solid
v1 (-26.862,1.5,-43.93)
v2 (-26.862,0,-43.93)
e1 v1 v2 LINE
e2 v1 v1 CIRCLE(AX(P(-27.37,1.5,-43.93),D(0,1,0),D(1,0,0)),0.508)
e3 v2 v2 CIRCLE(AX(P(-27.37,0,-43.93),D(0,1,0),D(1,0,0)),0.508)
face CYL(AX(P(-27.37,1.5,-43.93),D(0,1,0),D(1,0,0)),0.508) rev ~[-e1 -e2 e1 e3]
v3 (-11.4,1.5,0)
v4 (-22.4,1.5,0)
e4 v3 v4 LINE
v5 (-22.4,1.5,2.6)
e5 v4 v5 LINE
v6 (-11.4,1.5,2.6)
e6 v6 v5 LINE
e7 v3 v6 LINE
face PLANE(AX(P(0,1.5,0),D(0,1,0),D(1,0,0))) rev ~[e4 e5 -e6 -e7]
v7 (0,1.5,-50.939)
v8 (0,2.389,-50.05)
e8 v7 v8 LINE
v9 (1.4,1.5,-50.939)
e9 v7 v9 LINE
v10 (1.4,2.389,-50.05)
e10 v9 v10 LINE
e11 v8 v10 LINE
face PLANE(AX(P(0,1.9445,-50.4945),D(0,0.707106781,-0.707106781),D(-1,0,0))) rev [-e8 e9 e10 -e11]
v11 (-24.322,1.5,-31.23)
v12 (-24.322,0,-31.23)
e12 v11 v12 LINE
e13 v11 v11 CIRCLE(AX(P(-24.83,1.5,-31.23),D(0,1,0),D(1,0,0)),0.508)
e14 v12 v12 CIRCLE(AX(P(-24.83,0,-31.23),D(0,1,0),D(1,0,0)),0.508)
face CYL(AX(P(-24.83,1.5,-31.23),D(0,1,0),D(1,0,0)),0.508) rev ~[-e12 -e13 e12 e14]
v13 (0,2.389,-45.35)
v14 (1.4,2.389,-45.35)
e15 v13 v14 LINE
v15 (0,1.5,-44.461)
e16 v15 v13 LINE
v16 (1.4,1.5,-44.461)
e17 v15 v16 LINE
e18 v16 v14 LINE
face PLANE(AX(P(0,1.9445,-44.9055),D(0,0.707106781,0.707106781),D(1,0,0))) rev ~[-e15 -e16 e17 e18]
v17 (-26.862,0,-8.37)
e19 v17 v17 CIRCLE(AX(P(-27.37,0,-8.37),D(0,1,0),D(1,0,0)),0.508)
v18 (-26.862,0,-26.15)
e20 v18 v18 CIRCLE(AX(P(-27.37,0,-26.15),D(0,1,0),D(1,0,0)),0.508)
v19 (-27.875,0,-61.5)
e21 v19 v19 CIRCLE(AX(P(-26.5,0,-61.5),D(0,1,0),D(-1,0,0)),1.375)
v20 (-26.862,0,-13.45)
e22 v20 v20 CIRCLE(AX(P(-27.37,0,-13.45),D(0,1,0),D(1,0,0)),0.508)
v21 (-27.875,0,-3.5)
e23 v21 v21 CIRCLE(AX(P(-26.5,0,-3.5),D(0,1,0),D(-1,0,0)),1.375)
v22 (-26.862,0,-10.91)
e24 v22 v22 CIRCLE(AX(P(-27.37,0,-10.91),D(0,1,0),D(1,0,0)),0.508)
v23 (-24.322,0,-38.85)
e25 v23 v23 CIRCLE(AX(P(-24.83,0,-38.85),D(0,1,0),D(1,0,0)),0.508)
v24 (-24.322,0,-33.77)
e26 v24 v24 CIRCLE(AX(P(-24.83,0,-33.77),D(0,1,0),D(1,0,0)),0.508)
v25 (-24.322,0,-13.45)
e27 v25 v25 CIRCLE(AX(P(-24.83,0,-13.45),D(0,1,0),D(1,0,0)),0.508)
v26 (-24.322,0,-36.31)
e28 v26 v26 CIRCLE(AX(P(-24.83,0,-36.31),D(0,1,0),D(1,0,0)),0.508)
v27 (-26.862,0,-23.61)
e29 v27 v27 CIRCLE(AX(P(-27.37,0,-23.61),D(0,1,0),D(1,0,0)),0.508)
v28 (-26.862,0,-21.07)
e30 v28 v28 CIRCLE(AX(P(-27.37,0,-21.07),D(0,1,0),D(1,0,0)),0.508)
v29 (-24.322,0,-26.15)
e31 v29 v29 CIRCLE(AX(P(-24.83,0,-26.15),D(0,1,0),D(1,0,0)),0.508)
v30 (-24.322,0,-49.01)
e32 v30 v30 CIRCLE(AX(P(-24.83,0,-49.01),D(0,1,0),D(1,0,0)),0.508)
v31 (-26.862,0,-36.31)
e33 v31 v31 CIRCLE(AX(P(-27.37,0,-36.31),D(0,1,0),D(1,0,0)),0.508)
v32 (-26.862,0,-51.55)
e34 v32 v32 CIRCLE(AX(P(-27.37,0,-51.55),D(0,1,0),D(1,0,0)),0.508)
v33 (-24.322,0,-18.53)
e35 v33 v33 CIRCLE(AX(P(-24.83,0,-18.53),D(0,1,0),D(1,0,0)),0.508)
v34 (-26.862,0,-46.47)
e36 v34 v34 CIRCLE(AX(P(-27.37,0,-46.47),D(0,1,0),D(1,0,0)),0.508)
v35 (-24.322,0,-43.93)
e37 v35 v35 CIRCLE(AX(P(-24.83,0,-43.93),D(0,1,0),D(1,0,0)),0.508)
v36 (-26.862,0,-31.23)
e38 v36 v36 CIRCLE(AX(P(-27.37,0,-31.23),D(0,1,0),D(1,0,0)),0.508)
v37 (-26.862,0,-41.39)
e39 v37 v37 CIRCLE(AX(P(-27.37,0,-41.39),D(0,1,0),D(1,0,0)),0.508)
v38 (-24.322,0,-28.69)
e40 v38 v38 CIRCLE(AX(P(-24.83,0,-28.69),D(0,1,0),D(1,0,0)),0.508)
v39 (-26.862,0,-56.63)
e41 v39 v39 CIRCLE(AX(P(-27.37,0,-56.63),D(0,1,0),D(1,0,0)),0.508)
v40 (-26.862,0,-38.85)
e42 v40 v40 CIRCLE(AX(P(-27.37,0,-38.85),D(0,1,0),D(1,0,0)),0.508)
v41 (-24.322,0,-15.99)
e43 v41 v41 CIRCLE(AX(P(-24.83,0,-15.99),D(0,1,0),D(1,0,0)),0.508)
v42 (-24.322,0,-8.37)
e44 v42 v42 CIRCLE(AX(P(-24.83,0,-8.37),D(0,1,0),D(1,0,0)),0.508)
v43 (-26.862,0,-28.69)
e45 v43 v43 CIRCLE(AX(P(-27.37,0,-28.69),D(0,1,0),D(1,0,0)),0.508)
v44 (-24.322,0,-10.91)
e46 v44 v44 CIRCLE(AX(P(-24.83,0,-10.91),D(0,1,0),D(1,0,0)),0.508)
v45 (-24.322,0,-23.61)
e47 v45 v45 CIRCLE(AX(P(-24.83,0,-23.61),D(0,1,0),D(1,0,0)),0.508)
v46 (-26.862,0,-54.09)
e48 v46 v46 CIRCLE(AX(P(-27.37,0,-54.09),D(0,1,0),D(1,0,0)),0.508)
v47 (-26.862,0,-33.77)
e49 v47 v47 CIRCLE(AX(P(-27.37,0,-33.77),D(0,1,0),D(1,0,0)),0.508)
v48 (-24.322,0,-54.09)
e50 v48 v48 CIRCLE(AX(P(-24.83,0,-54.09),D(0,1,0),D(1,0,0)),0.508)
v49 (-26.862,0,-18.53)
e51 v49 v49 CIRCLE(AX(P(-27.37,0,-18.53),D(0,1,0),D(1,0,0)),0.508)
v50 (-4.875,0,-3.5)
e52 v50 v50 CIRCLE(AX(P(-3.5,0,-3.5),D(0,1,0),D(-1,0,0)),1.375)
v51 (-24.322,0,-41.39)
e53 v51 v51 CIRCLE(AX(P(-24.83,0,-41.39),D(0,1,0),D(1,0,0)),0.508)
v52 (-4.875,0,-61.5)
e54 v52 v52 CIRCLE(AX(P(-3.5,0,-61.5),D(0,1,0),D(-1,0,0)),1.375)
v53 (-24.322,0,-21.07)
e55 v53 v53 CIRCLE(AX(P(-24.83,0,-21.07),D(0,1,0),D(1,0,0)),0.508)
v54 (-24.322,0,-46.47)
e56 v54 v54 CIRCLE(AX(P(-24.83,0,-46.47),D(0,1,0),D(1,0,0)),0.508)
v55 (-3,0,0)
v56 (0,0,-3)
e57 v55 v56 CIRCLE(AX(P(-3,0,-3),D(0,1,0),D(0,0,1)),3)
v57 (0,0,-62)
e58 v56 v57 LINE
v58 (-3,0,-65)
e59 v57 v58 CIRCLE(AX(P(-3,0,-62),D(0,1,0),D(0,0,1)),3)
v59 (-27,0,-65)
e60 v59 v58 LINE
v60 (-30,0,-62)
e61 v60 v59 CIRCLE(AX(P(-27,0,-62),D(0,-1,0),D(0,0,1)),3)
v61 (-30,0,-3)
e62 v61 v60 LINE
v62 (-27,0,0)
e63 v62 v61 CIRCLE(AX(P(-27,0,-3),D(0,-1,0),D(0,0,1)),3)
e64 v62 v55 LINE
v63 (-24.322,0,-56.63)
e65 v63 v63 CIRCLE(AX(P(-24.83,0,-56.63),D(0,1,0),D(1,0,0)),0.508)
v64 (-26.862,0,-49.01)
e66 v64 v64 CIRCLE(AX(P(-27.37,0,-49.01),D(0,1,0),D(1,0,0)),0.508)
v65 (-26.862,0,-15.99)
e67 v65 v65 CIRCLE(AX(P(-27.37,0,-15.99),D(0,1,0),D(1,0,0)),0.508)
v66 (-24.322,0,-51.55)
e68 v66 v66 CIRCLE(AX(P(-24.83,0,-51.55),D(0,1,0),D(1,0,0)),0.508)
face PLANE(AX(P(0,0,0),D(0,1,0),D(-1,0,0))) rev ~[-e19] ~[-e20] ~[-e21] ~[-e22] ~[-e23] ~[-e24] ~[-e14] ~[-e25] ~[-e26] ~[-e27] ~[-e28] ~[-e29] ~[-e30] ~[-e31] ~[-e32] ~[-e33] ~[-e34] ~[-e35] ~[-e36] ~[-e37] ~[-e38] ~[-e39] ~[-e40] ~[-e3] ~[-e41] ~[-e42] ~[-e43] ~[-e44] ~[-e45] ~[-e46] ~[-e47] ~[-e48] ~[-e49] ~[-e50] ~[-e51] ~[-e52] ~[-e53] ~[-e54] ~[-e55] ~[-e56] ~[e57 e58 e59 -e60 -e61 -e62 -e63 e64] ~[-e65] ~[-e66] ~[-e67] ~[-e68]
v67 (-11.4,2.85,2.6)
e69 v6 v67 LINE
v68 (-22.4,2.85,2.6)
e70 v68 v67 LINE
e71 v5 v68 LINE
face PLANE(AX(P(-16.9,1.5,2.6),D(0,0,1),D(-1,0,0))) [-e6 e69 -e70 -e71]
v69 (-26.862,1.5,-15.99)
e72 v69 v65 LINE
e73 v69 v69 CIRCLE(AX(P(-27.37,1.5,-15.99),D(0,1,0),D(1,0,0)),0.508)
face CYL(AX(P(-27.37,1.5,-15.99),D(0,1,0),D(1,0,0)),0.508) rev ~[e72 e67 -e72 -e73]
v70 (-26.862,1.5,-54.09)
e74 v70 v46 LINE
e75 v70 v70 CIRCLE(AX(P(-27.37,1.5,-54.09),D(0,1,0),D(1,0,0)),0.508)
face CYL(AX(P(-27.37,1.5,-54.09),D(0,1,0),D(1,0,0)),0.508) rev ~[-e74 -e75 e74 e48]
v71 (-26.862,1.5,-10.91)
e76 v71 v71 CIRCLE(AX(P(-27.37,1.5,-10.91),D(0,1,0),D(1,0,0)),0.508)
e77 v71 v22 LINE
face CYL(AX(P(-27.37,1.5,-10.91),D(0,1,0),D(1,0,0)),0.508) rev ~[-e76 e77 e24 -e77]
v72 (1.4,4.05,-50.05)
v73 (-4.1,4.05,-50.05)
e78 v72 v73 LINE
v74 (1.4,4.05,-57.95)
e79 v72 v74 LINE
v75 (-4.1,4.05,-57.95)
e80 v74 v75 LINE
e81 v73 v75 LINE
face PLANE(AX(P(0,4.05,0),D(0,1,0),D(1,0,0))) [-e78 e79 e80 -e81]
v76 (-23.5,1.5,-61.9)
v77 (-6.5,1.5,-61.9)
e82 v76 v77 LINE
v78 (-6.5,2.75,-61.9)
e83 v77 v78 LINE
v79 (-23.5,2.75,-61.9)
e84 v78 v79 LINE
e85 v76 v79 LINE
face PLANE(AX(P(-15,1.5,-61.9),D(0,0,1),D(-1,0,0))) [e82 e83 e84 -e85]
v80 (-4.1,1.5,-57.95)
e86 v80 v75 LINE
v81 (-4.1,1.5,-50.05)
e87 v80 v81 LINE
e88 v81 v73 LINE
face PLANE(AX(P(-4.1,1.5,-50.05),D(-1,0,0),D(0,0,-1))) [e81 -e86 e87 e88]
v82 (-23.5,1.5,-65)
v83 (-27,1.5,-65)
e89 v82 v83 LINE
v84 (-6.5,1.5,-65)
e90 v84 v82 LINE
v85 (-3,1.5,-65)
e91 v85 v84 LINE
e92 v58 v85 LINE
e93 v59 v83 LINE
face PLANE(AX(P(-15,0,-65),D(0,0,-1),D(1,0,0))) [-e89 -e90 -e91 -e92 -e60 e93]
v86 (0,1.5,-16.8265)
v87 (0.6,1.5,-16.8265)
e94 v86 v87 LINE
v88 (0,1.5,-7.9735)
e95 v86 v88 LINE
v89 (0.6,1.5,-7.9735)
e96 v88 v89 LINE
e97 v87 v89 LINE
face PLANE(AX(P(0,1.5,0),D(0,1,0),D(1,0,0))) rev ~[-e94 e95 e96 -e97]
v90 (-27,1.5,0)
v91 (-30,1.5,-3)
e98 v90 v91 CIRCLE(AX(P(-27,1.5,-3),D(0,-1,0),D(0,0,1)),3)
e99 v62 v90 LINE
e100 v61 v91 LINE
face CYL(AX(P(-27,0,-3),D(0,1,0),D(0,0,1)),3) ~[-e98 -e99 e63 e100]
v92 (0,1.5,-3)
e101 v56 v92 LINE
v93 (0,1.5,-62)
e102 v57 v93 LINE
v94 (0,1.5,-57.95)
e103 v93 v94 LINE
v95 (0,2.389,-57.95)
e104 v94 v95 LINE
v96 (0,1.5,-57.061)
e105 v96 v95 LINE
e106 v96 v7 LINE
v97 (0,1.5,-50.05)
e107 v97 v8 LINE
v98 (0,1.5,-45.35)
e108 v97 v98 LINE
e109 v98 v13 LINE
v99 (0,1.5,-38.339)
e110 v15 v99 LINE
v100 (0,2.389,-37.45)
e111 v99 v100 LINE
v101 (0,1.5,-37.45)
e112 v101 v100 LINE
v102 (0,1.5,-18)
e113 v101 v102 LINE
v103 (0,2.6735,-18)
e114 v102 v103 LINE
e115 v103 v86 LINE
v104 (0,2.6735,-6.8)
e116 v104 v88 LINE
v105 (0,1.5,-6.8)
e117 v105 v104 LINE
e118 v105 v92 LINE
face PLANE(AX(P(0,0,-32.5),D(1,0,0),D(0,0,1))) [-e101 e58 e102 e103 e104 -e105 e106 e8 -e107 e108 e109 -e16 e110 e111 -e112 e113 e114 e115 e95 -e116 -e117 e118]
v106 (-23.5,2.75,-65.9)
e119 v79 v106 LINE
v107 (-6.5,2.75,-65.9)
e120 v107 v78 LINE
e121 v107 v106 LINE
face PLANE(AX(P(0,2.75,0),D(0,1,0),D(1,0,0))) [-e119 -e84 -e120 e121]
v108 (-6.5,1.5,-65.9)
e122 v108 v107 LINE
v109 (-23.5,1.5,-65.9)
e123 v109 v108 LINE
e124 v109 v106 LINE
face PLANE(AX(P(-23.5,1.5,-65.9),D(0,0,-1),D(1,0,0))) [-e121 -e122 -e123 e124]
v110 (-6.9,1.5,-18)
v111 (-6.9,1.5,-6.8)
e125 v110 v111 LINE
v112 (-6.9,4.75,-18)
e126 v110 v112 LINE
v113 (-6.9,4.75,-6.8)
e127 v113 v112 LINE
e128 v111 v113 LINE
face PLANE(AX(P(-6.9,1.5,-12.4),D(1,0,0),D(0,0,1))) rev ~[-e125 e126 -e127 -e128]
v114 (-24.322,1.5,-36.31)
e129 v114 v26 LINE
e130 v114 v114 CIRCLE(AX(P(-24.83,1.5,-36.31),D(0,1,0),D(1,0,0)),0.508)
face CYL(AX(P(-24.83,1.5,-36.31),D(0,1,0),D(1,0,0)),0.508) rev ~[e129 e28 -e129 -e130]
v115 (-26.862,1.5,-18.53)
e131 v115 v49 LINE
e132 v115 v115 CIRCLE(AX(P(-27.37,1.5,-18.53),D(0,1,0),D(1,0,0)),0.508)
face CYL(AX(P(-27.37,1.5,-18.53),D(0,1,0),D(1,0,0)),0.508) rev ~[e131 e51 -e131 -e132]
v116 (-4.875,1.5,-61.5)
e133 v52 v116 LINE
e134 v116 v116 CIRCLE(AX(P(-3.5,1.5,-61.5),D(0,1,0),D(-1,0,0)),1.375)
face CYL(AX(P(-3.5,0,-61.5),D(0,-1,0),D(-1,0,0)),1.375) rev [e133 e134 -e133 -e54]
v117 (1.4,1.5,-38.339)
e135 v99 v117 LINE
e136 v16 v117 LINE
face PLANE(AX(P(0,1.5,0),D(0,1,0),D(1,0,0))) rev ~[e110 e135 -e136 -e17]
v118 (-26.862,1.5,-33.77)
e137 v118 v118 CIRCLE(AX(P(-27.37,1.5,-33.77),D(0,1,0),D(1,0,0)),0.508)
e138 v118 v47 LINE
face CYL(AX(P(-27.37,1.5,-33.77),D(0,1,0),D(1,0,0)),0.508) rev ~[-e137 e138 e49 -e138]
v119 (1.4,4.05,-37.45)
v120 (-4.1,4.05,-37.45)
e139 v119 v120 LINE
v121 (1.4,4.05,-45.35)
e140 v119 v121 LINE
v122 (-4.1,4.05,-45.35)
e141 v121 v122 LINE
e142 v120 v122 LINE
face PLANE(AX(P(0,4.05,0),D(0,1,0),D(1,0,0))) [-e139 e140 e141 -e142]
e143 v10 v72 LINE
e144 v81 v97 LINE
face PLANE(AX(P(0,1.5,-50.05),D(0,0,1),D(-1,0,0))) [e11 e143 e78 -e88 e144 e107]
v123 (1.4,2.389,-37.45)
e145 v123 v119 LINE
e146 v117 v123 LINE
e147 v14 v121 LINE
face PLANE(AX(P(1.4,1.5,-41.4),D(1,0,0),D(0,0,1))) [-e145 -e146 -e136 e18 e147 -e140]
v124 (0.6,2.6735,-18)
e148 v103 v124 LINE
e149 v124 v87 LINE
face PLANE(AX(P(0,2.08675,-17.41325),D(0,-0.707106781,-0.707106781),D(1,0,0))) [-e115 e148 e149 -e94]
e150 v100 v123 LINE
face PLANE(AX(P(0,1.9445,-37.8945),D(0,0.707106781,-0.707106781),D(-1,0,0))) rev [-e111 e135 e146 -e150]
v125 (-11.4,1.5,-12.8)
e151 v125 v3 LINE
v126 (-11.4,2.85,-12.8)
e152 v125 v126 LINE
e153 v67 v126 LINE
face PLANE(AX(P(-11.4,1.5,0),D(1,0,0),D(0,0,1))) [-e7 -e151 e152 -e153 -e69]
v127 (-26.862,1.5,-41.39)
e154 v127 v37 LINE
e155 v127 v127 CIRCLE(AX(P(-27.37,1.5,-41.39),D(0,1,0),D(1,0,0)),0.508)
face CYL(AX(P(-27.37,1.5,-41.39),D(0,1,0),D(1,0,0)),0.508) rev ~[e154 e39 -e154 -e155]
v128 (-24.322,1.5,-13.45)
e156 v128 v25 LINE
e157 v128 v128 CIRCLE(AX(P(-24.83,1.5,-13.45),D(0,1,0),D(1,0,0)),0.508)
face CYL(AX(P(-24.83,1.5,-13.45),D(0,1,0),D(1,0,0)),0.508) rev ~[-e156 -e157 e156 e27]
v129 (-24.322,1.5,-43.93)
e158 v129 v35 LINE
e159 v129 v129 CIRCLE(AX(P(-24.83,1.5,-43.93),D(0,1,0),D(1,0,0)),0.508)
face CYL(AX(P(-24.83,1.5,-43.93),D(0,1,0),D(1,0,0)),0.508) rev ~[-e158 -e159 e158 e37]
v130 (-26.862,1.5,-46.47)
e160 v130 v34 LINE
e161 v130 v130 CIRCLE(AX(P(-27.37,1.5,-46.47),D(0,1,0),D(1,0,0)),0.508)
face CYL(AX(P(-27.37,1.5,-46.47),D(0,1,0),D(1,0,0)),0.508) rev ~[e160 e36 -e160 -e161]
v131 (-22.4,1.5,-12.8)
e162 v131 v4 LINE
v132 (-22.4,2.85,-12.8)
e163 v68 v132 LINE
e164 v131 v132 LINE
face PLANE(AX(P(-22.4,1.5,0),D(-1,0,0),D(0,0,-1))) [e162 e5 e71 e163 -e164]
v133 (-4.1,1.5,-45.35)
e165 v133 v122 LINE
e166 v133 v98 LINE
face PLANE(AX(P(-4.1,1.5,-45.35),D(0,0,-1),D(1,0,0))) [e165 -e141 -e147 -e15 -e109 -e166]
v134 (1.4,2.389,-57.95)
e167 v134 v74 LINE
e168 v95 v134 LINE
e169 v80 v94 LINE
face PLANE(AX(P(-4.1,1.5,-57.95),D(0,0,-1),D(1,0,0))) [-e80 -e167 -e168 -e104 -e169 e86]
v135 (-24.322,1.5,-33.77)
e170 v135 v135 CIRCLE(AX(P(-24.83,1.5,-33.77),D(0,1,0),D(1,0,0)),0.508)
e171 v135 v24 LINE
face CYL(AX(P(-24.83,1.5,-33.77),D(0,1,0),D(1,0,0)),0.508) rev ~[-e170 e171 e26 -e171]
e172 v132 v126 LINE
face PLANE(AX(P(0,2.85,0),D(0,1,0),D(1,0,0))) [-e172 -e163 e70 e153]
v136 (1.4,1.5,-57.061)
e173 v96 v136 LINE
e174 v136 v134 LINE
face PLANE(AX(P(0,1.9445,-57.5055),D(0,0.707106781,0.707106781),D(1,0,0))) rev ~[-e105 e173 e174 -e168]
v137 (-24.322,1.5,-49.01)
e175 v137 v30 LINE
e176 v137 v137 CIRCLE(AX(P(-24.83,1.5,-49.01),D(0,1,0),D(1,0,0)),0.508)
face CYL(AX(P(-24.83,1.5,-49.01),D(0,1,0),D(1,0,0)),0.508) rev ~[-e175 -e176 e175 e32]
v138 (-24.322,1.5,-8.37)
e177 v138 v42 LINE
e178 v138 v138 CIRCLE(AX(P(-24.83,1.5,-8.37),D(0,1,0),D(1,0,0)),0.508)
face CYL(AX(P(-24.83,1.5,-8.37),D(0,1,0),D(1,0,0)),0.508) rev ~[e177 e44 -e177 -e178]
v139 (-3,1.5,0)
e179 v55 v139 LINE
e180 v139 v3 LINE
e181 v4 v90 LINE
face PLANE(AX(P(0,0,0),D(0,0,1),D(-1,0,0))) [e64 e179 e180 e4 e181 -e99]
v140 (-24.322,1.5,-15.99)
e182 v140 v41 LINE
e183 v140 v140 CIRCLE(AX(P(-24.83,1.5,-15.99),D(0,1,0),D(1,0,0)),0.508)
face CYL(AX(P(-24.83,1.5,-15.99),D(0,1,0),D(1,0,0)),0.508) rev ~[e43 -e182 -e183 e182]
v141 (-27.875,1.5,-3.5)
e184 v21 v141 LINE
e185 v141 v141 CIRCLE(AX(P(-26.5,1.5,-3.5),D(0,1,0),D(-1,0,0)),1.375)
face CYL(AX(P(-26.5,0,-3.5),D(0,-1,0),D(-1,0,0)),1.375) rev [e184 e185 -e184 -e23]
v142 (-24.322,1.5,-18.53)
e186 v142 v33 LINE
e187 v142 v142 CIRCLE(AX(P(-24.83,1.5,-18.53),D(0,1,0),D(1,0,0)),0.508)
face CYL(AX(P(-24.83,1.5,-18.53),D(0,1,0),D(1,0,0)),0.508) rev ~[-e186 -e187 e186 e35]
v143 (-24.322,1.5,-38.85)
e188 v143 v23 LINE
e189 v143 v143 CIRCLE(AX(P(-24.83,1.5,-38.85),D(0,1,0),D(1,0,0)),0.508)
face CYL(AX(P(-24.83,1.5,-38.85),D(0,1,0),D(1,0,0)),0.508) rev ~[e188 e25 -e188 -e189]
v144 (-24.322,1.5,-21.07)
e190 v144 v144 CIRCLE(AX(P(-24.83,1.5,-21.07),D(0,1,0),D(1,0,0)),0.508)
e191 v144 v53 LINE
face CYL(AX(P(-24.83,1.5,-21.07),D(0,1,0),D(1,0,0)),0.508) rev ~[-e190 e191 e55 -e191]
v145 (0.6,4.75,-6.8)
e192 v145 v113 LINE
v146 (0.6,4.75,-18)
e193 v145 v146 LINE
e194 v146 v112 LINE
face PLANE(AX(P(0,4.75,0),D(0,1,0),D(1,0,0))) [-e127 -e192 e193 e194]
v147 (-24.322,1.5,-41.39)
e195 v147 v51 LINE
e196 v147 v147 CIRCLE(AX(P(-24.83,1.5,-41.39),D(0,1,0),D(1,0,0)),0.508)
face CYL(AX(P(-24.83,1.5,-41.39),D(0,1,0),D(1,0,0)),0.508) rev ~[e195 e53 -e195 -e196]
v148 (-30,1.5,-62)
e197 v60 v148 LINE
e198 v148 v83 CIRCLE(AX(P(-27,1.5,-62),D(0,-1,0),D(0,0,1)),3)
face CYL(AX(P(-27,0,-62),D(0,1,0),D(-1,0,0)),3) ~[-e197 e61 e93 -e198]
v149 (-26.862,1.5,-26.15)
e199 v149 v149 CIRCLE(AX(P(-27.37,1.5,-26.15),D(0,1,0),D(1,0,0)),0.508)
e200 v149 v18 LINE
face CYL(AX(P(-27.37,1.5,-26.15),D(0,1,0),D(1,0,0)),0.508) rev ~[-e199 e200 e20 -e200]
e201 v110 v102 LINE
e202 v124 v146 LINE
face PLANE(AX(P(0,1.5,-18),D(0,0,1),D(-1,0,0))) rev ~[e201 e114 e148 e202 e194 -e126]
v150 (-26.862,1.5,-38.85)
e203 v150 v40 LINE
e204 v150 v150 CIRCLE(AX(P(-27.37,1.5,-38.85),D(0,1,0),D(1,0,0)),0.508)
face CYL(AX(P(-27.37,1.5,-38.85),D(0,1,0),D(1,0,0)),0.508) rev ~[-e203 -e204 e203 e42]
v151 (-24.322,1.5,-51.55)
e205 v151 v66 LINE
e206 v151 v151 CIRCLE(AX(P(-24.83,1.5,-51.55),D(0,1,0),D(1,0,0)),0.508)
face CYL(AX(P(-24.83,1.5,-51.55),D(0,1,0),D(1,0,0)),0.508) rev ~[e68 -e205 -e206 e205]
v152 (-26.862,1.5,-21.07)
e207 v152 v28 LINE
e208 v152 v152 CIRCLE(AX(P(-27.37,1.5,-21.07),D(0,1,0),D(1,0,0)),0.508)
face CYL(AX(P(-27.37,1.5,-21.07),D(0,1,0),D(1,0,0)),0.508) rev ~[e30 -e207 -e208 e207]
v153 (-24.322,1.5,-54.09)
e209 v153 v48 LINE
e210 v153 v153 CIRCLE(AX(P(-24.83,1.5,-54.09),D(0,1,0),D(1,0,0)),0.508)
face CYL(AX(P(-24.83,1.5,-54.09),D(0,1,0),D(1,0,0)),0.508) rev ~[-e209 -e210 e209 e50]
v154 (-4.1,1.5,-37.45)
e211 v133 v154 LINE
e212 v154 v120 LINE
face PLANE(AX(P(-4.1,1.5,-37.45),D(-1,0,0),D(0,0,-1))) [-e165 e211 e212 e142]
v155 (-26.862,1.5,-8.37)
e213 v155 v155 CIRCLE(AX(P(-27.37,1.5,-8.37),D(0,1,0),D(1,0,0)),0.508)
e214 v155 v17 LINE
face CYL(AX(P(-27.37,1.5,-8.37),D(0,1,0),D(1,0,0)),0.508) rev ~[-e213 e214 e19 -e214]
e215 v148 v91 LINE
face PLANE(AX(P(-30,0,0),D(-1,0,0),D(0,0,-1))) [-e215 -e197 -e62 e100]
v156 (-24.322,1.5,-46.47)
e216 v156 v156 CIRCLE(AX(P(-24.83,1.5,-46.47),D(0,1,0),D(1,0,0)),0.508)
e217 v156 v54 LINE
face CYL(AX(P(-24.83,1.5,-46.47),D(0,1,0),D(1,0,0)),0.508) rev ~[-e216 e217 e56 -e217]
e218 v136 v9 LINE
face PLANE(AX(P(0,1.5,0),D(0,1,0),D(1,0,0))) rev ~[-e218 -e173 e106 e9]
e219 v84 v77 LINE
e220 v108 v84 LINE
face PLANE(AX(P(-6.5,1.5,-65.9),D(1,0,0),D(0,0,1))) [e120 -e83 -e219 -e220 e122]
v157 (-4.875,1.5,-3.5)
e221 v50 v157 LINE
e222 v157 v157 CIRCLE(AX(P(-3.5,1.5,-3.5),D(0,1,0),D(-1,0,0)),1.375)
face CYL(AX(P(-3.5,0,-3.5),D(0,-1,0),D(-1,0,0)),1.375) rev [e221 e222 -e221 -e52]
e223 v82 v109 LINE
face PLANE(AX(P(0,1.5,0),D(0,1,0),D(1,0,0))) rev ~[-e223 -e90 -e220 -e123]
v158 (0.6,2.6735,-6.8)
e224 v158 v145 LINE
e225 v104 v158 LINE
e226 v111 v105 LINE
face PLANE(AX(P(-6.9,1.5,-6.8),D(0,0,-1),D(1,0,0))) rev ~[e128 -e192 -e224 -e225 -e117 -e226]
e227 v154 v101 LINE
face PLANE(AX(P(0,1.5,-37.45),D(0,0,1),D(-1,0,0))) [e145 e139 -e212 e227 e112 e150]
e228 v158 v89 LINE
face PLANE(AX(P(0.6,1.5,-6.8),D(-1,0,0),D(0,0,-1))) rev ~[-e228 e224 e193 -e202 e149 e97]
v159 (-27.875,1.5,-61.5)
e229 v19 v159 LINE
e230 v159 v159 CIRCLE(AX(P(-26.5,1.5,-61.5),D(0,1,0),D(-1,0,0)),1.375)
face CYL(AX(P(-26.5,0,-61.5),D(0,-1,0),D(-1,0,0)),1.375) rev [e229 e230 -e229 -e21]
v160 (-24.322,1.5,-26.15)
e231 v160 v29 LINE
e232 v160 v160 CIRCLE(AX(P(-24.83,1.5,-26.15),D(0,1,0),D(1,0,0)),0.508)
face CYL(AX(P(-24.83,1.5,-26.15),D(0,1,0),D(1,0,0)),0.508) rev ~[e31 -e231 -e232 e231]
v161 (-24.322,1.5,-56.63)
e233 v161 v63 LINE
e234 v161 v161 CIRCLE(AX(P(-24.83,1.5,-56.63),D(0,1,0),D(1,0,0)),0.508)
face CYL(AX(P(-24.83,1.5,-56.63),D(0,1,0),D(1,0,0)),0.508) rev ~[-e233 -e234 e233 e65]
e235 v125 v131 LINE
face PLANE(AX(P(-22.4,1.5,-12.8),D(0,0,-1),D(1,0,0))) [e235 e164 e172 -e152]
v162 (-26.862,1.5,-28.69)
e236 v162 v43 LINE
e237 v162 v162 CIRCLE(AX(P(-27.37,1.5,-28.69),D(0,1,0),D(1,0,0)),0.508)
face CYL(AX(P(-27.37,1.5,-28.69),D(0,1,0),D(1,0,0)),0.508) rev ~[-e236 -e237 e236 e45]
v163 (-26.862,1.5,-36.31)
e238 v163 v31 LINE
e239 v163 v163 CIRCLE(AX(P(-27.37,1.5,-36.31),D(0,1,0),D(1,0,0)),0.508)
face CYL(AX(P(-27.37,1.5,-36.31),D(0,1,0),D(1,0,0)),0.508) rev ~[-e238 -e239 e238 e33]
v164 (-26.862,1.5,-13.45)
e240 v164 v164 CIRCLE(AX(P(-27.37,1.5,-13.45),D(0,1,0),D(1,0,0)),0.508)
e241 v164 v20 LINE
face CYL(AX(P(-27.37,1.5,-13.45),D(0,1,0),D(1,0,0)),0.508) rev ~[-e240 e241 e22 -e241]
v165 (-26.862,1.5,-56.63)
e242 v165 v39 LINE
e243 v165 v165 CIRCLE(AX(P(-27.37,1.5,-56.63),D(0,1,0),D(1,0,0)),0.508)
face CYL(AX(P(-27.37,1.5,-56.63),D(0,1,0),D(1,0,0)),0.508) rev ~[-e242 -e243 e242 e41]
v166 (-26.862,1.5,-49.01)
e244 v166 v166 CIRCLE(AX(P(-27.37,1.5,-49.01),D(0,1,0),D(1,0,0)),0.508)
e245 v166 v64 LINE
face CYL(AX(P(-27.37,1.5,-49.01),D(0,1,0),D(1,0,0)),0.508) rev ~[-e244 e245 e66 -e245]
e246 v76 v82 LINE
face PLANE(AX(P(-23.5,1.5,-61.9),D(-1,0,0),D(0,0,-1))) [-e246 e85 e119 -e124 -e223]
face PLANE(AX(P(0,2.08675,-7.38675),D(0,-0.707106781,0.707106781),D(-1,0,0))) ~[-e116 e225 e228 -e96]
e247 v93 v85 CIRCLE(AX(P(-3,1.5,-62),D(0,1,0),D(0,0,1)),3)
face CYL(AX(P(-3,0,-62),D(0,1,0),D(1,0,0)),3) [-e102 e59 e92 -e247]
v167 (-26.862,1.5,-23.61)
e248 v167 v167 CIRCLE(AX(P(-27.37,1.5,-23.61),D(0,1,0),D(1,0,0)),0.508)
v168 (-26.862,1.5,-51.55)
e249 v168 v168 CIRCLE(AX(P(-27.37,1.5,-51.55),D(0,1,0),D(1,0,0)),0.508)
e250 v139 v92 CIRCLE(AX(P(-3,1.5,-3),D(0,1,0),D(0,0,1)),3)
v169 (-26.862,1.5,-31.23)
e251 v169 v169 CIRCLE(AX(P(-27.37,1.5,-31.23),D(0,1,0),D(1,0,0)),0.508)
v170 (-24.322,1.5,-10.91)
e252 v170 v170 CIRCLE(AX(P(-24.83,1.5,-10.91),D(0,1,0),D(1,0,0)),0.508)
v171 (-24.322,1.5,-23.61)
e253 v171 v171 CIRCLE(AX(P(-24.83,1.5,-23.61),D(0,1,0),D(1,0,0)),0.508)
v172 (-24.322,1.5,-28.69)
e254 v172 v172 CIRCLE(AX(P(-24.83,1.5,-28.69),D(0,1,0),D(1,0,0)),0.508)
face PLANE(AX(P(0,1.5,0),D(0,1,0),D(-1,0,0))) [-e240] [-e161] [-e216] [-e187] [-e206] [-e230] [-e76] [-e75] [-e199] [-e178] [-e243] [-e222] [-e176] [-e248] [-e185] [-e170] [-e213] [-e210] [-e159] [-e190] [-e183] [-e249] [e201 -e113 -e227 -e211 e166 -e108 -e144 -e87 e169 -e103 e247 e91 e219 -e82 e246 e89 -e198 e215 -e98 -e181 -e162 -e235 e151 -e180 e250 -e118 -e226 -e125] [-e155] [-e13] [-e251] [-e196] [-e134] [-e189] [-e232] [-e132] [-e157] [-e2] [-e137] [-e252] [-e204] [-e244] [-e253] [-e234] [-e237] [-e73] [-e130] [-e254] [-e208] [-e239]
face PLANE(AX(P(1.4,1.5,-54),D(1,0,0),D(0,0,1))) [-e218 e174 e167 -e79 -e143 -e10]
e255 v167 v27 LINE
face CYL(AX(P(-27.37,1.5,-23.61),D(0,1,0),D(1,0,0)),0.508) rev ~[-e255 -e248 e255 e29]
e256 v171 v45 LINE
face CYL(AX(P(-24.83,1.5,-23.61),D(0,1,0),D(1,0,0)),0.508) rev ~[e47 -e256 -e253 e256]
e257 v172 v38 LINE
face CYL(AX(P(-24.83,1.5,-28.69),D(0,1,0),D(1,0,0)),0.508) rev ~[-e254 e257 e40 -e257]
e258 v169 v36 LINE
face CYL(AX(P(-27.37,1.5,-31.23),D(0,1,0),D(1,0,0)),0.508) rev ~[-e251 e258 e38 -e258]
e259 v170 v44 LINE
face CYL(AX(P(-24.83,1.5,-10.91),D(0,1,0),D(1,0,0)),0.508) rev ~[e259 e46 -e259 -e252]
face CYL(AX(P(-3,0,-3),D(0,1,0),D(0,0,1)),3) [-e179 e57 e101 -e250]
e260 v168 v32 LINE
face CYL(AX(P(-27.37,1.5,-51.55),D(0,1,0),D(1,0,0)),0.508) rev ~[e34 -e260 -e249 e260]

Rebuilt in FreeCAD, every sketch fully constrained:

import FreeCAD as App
import Part
import Sketcher

V = App.Vector


def edges_at(feature, points):
    """Names of the edges that pass closest to the given points."""
    edges = feature.Shape.Edges
    near = lambda p: min(range(len(edges)), key=lambda i: edges[i].distToShape(Part.Vertex(*p))[0])
    return sorted({f"Edge{near(p) + 1}" for p in points})


def add_polygon(sketch, points):
    """Adds a closed chain of lines whose ends are joined by coincident constraints."""
    first, n = sketch.GeometryCount, len(points)
    for a, b in zip(points, points[1:] + points[:1]):
        sketch.addGeometry(Part.LineSegment(App.Vector(*a, 0), App.Vector(*b, 0)), False)
    for i in range(n):
        sketch.addConstraint(Sketcher.Constraint("Coincident", first + i, 2, first + (i + 1) % n, 1))

doc = App.newDocument("Part")
params = doc.addObject("Spreadsheet::Sheet", "Params")
for row, (alias, value) in enumerate([
    ("sketch1_diameter", "2.75 mm"),
    ("sketch1_width", "30 mm"),
    ("sketch1_height", "65 mm"),
    ("pad1_length", "1.5 mm"),
    ("fillet_radius", "3 mm"),
    ("sketch2_width", "7.5 mm"),
    ("sketch2_height", "11.2 mm"),
    ("pad2_length", "3.25 mm"),
    ("sketch3_width", "5.5 mm"),
    ("sketch3_height", "7.9 mm"),
    ("pad3_length", "2.55 mm"),
    ("sketch4_width", "17 mm"),
    ("sketch4_height", "4 mm"),
    ("pad4_length", "1.25 mm"),
    ("sketch5_width", "11 mm"),
    ("sketch5_height", "15.4 mm"),
    ("pad5_length", "1.35 mm"),
    ("chamfer_size", "1.1735 mm"),
    ("chamfer2_size", "0.889 mm"),
], start=1):
    params.set(f"A{row}", alias)
    params.set(f"B{row}", "=" + value)
    params.setAlias(f"B{row}", alias)

body = doc.addObject("PartDesign::Body", "Body")

sketch1 = doc.addObject("Sketcher::SketchObject", "Sketch")
body.addObject(sketch1)
sketch1.AttachmentSupport = (doc.XZ_Plane, [""])
sketch1.MapMode = "FlatFace"
add_polygon(sketch1, [(0, 0), (0, -65), (-30, -65), (-30, 0)])
sketch1.addGeometry(Part.Circle(V(-3.5, -3.5, 0), V(0, 0, 1), 1.375), False)
sketch1.addGeometry(Part.Circle(V(-26.5, -3.5, 0), V(0, 0, 1), 1.375), False)
sketch1.addGeometry(Part.Circle(V(-3.5, -61.5, 0), V(0, 0, 1), 1.375), False)
sketch1.addGeometry(Part.Circle(V(-26.5, -61.5, 0), V(0, 0, 1), 1.375), False)
sketch1.addConstraint(Sketcher.Constraint("Vertical", 0))
sketch1.addConstraint(Sketcher.Constraint("Horizontal", 1))
sketch1.addConstraint(Sketcher.Constraint("Vertical", 2))
sketch1.addConstraint(Sketcher.Constraint("Horizontal", 3))
sketch1.addConstraint(Sketcher.Constraint("Coincident", 3, 2, -1, 1))
sketch1.addConstraint(Sketcher.Constraint("Equal", 4, 5))
sketch1.addConstraint(Sketcher.Constraint("Equal", 5, 6))
sketch1.addConstraint(Sketcher.Constraint("Equal", 6, 7))
sketch1.addConstraint(Sketcher.Constraint("Horizontal", 4, 3, 5, 3))
sketch1.addConstraint(Sketcher.Constraint("Horizontal", 6, 3, 7, 3))
sketch1.addConstraint(Sketcher.Constraint("Vertical", 4, 3, 6, 3))
sketch1.addConstraint(Sketcher.Constraint("Vertical", 5, 3, 7, 3))
sketch1.addConstraint(Sketcher.Constraint("Diameter", 4, 2.75))
sketch1.addConstraint(Sketcher.Constraint("DistanceX", 1, 2, 1, 1, 30.0))
sketch1.addConstraint(Sketcher.Constraint("DistanceY", 0, 2, 0, 1, 65.0))
sketch1.addConstraint(Sketcher.Constraint("DistanceX", 4, 3, -1, 1, 3.5))
sketch1.addConstraint(Sketcher.Constraint("DistanceY", 4, 3, -1, 1, 3.5))
sketch1.addConstraint(Sketcher.Constraint("DistanceY", 0, 2, 6, 3, 3.5))
sketch1.addConstraint(Sketcher.Constraint("DistanceX", 1, 2, 7, 3, 3.5))
sketch1.setExpression("Constraints[16]", "Params.sketch1_diameter")
sketch1.setExpression("Constraints[17]", "Params.sketch1_width")
sketch1.setExpression("Constraints[18]", "Params.sketch1_height")
pad1 = doc.addObject("PartDesign::Pad", "Pad")
body.addObject(pad1)
pad1.Profile = sketch1
pad1.setExpression("Length", "Params.pad1_length")
pad1.Reversed = True
doc.recompute()

fillet = doc.addObject("PartDesign::Fillet", "Fillet")
body.addObject(fillet)
fillet.Base = (pad1, edges_at(pad1, [
    (-30, 0.75, 0),
    (0, 0.75, 0),
    (0, 0.75, -65),
    (-30, 0.75, -65),
]))
fillet.setExpression("Radius", "Params.fillet_radius")

sketch2 = doc.addObject("Sketcher::SketchObject", "Sketch001")
body.addObject(sketch2)
sketch2.AttachmentSupport = (doc.XZ_Plane, [""])
sketch2.MapMode = "FlatFace"
sketch2.AttachmentOffset = App.Placement(V(0, 0, -1.5), App.Rotation())
add_polygon(sketch2, [(-6.9, -6.8), (0.6, -6.8), (0.6, -18), (-6.9, -18)])
sketch2.addConstraint(Sketcher.Constraint("Horizontal", 0))
sketch2.addConstraint(Sketcher.Constraint("Vertical", 1))
sketch2.addConstraint(Sketcher.Constraint("Horizontal", 2))
sketch2.addConstraint(Sketcher.Constraint("Vertical", 3))
sketch2.addConstraint(Sketcher.Constraint("DistanceX", 0, 1, 0, 2, 7.5))
sketch2.addConstraint(Sketcher.Constraint("DistanceY", 1, 2, 1, 1, 11.2))
sketch2.addConstraint(Sketcher.Constraint("DistanceY", 1, 2, -1, 1, 18.0))
sketch2.addConstraint(Sketcher.Constraint("DistanceX", -1, 1, 0, 2, 0.6))
sketch2.setExpression("Constraints[8]", "Params.sketch2_width")
sketch2.setExpression("Constraints[9]", "Params.sketch2_height")
pad2 = doc.addObject("PartDesign::Pad", "Pad001")
body.addObject(pad2)
pad2.Profile = sketch2
pad2.setExpression("Length", "Params.pad2_length")
pad2.Reversed = True

sketch3 = doc.addObject("Sketcher::SketchObject", "Sketch002")
body.addObject(sketch3)
sketch3.AttachmentSupport = (doc.XZ_Plane, [""])
sketch3.MapMode = "FlatFace"
sketch3.AttachmentOffset = App.Placement(V(0, 0, -1.5), App.Rotation())
add_polygon(sketch3, [(-4.1, -50.05), (1.4, -50.05), (1.4, -57.95), (-4.1, -57.95)])
add_polygon(sketch3, [(-4.1, -37.45), (1.4, -37.45), (1.4, -45.35), (-4.1, -45.35)])
sketch3.addConstraint(Sketcher.Constraint("Horizontal", 0))
sketch3.addConstraint(Sketcher.Constraint("Vertical", 1))
sketch3.addConstraint(Sketcher.Constraint("Horizontal", 2))
sketch3.addConstraint(Sketcher.Constraint("Vertical", 3))
sketch3.addConstraint(Sketcher.Constraint("Horizontal", 4))
sketch3.addConstraint(Sketcher.Constraint("Vertical", 5))
sketch3.addConstraint(Sketcher.Constraint("Horizontal", 6))
sketch3.addConstraint(Sketcher.Constraint("Vertical", 7))
sketch3.addConstraint(Sketcher.Constraint("Vertical", 1, 2, 4, 2))
sketch3.addConstraint(Sketcher.Constraint("Vertical", 3, 2, 6, 2))
sketch3.addConstraint(Sketcher.Constraint("Equal", 3, 5))
sketch3.addConstraint(Sketcher.Constraint("DistanceX", 0, 1, 0, 2, 5.5))
sketch3.addConstraint(Sketcher.Constraint("DistanceY", 1, 2, 1, 1, 7.9))
sketch3.addConstraint(Sketcher.Constraint("DistanceX", -1, 1, 0, 2, 1.4))
sketch3.addConstraint(Sketcher.Constraint("DistanceY", 0, 2, 4, 2, 12.6))
sketch3.addConstraint(Sketcher.Constraint("DistanceY", 0, 2, -1, 1, 50.05))
sketch3.setExpression("Constraints[19]", "Params.sketch3_width")
sketch3.setExpression("Constraints[20]", "Params.sketch3_height")
pad3 = doc.addObject("PartDesign::Pad", "Pad002")
body.addObject(pad3)
pad3.Profile = sketch3
pad3.setExpression("Length", "Params.pad3_length")
pad3.Reversed = True

sketch4 = doc.addObject("Sketcher::SketchObject", "Sketch003")
body.addObject(sketch4)
sketch4.AttachmentSupport = (doc.XZ_Plane, [""])
sketch4.MapMode = "FlatFace"
sketch4.AttachmentOffset = App.Placement(V(0, 0, -1.5), App.Rotation())
add_polygon(sketch4, [(-23.5, -61.9), (-6.5, -61.9), (-6.5, -65.9), (-23.5, -65.9)])
sketch4.addConstraint(Sketcher.Constraint("Horizontal", 0))
sketch4.addConstraint(Sketcher.Constraint("Vertical", 1))
sketch4.addConstraint(Sketcher.Constraint("Horizontal", 2))
sketch4.addConstraint(Sketcher.Constraint("Vertical", 3))
sketch4.addConstraint(Sketcher.Constraint("DistanceX", 0, 1, 0, 2, 17.0))
sketch4.addConstraint(Sketcher.Constraint("DistanceY", 1, 2, 1, 1, 4.0))
sketch4.addConstraint(Sketcher.Constraint("DistanceY", 1, 2, -1, 1, 65.9))
sketch4.addConstraint(Sketcher.Constraint("DistanceX", 0, 2, -1, 1, 6.5))
sketch4.setExpression("Constraints[8]", "Params.sketch4_width")
sketch4.setExpression("Constraints[9]", "Params.sketch4_height")
pad4 = doc.addObject("PartDesign::Pad", "Pad003")
body.addObject(pad4)
pad4.Profile = sketch4
pad4.setExpression("Length", "Params.pad4_length")
pad4.Reversed = True

sketch5 = doc.addObject("Sketcher::SketchObject", "Sketch004")
body.addObject(sketch5)
sketch5.AttachmentSupport = (doc.XZ_Plane, [""])
sketch5.MapMode = "FlatFace"
sketch5.AttachmentOffset = App.Placement(V(0, 0, -1.5), App.Rotation())
add_polygon(sketch5, [(-22.4, -12.8), (-22.4, 2.6), (-11.4, 2.6), (-11.4, -12.8)])
sketch5.addConstraint(Sketcher.Constraint("Vertical", 0))
sketch5.addConstraint(Sketcher.Constraint("Horizontal", 1))
sketch5.addConstraint(Sketcher.Constraint("Vertical", 2))
sketch5.addConstraint(Sketcher.Constraint("Horizontal", 3))
sketch5.addConstraint(Sketcher.Constraint("DistanceX", 1, 1, 1, 2, 11.0))
sketch5.addConstraint(Sketcher.Constraint("DistanceY", 0, 1, 0, 2, 15.4))
sketch5.addConstraint(Sketcher.Constraint("DistanceY", -1, 1, 0, 2, 2.6))
sketch5.addConstraint(Sketcher.Constraint("DistanceX", 0, 2, -1, 1, 22.4))
sketch5.setExpression("Constraints[8]", "Params.sketch5_width")
sketch5.setExpression("Constraints[9]", "Params.sketch5_height")
pad5 = doc.addObject("PartDesign::Pad", "Pad004")
body.addObject(pad5)
pad5.Profile = sketch5
pad5.setExpression("Length", "Params.pad5_length")
pad5.Reversed = True
doc.recompute()

chamfer = doc.addObject("PartDesign::Chamfer", "Chamfer")
body.addObject(chamfer)
chamfer.Base = (pad5, edges_at(pad5, [(0.3, 1.5, -6.8), (0.3, 1.5, -18)]))
chamfer.setExpression("Size", "Params.chamfer_size")
doc.recompute()

chamfer2 = doc.addObject("PartDesign::Chamfer", "Chamfer001")
body.addObject(chamfer2)
chamfer2.Base = (chamfer, edges_at(chamfer, [
    (0.7, 1.5, -37.45),
    (0.7, 1.5, -45.35),
    (0.7, 1.5, -50.05),
    (0.7, 1.5, -57.95),
]))
chamfer2.setExpression("Size", "Params.chamfer2_size")

sketch6 = doc.addObject("Sketcher::SketchObject", "Sketch005")
body.addObject(sketch6)
sketch6.AttachmentSupport = (doc.XZ_Plane, [""])
sketch6.MapMode = "FlatFace"
sketch6.AttachmentOffset = App.Placement(V(0, 0, -1.5), App.Rotation())
sketch6.addGeometry(Part.Circle(V(-27.37, -8.37, 0), V(0, 0, 1), 0.508), False)
sketch6.addGeometry(Part.Circle(V(-27.37, -10.91, 0), V(0, 0, 1), 0.508), False)
sketch6.addGeometry(Part.Circle(V(-27.37, -13.45, 0), V(0, 0, 1), 0.508), False)
sketch6.addGeometry(Part.Circle(V(-27.37, -15.99, 0), V(0, 0, 1), 0.508), False)
sketch6.addGeometry(Part.Circle(V(-27.37, -18.53, 0), V(0, 0, 1), 0.508), False)
sketch6.addGeometry(Part.Circle(V(-27.37, -21.07, 0), V(0, 0, 1), 0.508), False)
sketch6.addGeometry(Part.Circle(V(-27.37, -23.61, 0), V(0, 0, 1), 0.508), False)
sketch6.addGeometry(Part.Circle(V(-27.37, -26.15, 0), V(0, 0, 1), 0.508), False)
sketch6.addGeometry(Part.Circle(V(-27.37, -28.69, 0), V(0, 0, 1), 0.508), False)
sketch6.addGeometry(Part.Circle(V(-27.37, -31.23, 0), V(0, 0, 1), 0.508), False)
sketch6.addGeometry(Part.Circle(V(-27.37, -33.77, 0), V(0, 0, 1), 0.508), False)
sketch6.addGeometry(Part.Circle(V(-27.37, -36.31, 0), V(0, 0, 1), 0.508), False)
sketch6.addGeometry(Part.Circle(V(-27.37, -38.85, 0), V(0, 0, 1), 0.508), False)
sketch6.addGeometry(Part.Circle(V(-27.37, -41.39, 0), V(0, 0, 1), 0.508), False)
sketch6.addGeometry(Part.Circle(V(-27.37, -43.93, 0), V(0, 0, 1), 0.508), False)
sketch6.addGeometry(Part.Circle(V(-27.37, -46.47, 0), V(0, 0, 1), 0.508), False)
sketch6.addGeometry(Part.Circle(V(-27.37, -49.01, 0), V(0, 0, 1), 0.508), False)
sketch6.addGeometry(Part.Circle(V(-27.37, -51.55, 0), V(0, 0, 1), 0.508), False)
sketch6.addGeometry(Part.Circle(V(-27.37, -54.09, 0), V(0, 0, 1), 0.508), False)
sketch6.addGeometry(Part.Circle(V(-27.37, -56.63, 0), V(0, 0, 1), 0.508), False)
sketch6.addGeometry(Part.Circle(V(-24.83, -8.37, 0), V(0, 0, 1), 0.508), False)
sketch6.addGeometry(Part.Circle(V(-24.83, -10.91, 0), V(0, 0, 1), 0.508), False)
sketch6.addGeometry(Part.Circle(V(-24.83, -13.45, 0), V(0, 0, 1), 0.508), False)
sketch6.addGeometry(Part.Circle(V(-24.83, -15.99, 0), V(0, 0, 1), 0.508), False)
sketch6.addGeometry(Part.Circle(V(-24.83, -18.53, 0), V(0, 0, 1), 0.508), False)
sketch6.addGeometry(Part.Circle(V(-24.83, -21.07, 0), V(0, 0, 1), 0.508), False)
sketch6.addGeometry(Part.Circle(V(-24.83, -23.61, 0), V(0, 0, 1), 0.508), False)
sketch6.addGeometry(Part.Circle(V(-24.83, -26.15, 0), V(0, 0, 1), 0.508), False)
sketch6.addGeometry(Part.Circle(V(-24.83, -28.69, 0), V(0, 0, 1), 0.508), False)
sketch6.addGeometry(Part.Circle(V(-24.83, -31.23, 0), V(0, 0, 1), 0.508), False)
sketch6.addGeometry(Part.Circle(V(-24.83, -33.77, 0), V(0, 0, 1), 0.508), False)
sketch6.addGeometry(Part.Circle(V(-24.83, -36.31, 0), V(0, 0, 1), 0.508), False)
sketch6.addGeometry(Part.Circle(V(-24.83, -38.85, 0), V(0, 0, 1), 0.508), False)
sketch6.addGeometry(Part.Circle(V(-24.83, -41.39, 0), V(0, 0, 1), 0.508), False)
sketch6.addGeometry(Part.Circle(V(-24.83, -43.93, 0), V(0, 0, 1), 0.508), False)
sketch6.addGeometry(Part.Circle(V(-24.83, -46.47, 0), V(0, 0, 1), 0.508), False)
sketch6.addGeometry(Part.Circle(V(-24.83, -49.01, 0), V(0, 0, 1), 0.508), False)
sketch6.addGeometry(Part.Circle(V(-24.83, -51.55, 0), V(0, 0, 1), 0.508), False)
sketch6.addGeometry(Part.Circle(V(-24.83, -54.09, 0), V(0, 0, 1), 0.508), False)
sketch6.addGeometry(Part.Circle(V(-24.83, -56.63, 0), V(0, 0, 1), 0.508), False)
sketch6.addConstraint(Sketcher.Constraint("Equal", 0, 1))
sketch6.addConstraint(Sketcher.Constraint("Equal", 1, 2))
sketch6.addConstraint(Sketcher.Constraint("Equal", 2, 3))
sketch6.addConstraint(Sketcher.Constraint("Equal", 3, 4))
sketch6.addConstraint(Sketcher.Constraint("Equal", 4, 5))
sketch6.addConstraint(Sketcher.Constraint("Equal", 5, 6))
sketch6.addConstraint(Sketcher.Constraint("Equal", 6, 7))
sketch6.addConstraint(Sketcher.Constraint("Equal", 7, 8))
sketch6.addConstraint(Sketcher.Constraint("Equal", 8, 9))
sketch6.addConstraint(Sketcher.Constraint("Equal", 9, 10))
sketch6.addConstraint(Sketcher.Constraint("Equal", 10, 11))
sketch6.addConstraint(Sketcher.Constraint("Equal", 11, 12))
sketch6.addConstraint(Sketcher.Constraint("Equal", 12, 13))
sketch6.addConstraint(Sketcher.Constraint("Equal", 13, 14))
sketch6.addConstraint(Sketcher.Constraint("Equal", 14, 15))
sketch6.addConstraint(Sketcher.Constraint("Equal", 15, 16))
sketch6.addConstraint(Sketcher.Constraint("Equal", 16, 17))
sketch6.addConstraint(Sketcher.Constraint("Equal", 17, 18))
sketch6.addConstraint(Sketcher.Constraint("Equal", 18, 19))
sketch6.addConstraint(Sketcher.Constraint("Equal", 19, 20))
sketch6.addConstraint(Sketcher.Constraint("Equal", 20, 21))
sketch6.addConstraint(Sketcher.Constraint("Equal", 21, 22))
sketch6.addConstraint(Sketcher.Constraint("Equal", 22, 23))
sketch6.addConstraint(Sketcher.Constraint("Equal", 23, 24))
sketch6.addConstraint(Sketcher.Constraint("Equal", 24, 25))
sketch6.addConstraint(Sketcher.Constraint("Equal", 25, 26))
sketch6.addConstraint(Sketcher.Constraint("Equal", 26, 27))
sketch6.addConstraint(Sketcher.Constraint("Equal", 27, 28))
sketch6.addConstraint(Sketcher.Constraint("Equal", 28, 29))
sketch6.addConstraint(Sketcher.Constraint("Equal", 29, 30))
sketch6.addConstraint(Sketcher.Constraint("Equal", 30, 31))
sketch6.addConstraint(Sketcher.Constraint("Equal", 31, 32))
sketch6.addConstraint(Sketcher.Constraint("Equal", 32, 33))
sketch6.addConstraint(Sketcher.Constraint("Equal", 33, 34))
sketch6.addConstraint(Sketcher.Constraint("Equal", 34, 35))
sketch6.addConstraint(Sketcher.Constraint("Equal", 35, 36))
sketch6.addConstraint(Sketcher.Constraint("Equal", 36, 37))
sketch6.addConstraint(Sketcher.Constraint("Equal", 37, 38))
sketch6.addConstraint(Sketcher.Constraint("Equal", 38, 39))
sketch6.addConstraint(Sketcher.Constraint("Horizontal", 0, 3, 20, 3))
sketch6.addConstraint(Sketcher.Constraint("Horizontal", 1, 3, 21, 3))
sketch6.addConstraint(Sketcher.Constraint("Horizontal", 2, 3, 22, 3))
sketch6.addConstraint(Sketcher.Constraint("Horizontal", 3, 3, 23, 3))
sketch6.addConstraint(Sketcher.Constraint("Horizontal", 4, 3, 24, 3))
sketch6.addConstraint(Sketcher.Constraint("Horizontal", 5, 3, 25, 3))
sketch6.addConstraint(Sketcher.Constraint("Horizontal", 6, 3, 26, 3))
sketch6.addConstraint(Sketcher.Constraint("Horizontal", 7, 3, 27, 3))
sketch6.addConstraint(Sketcher.Constraint("Horizontal", 8, 3, 28, 3))
sketch6.addConstraint(Sketcher.Constraint("Horizontal", 9, 3, 29, 3))
sketch6.addConstraint(Sketcher.Constraint("Horizontal", 10, 3, 30, 3))
sketch6.addConstraint(Sketcher.Constraint("Horizontal", 11, 3, 31, 3))
sketch6.addConstraint(Sketcher.Constraint("Horizontal", 12, 3, 32, 3))
sketch6.addConstraint(Sketcher.Constraint("Horizontal", 13, 3, 33, 3))
sketch6.addConstraint(Sketcher.Constraint("Horizontal", 14, 3, 34, 3))
sketch6.addConstraint(Sketcher.Constraint("Horizontal", 15, 3, 35, 3))
sketch6.addConstraint(Sketcher.Constraint("Horizontal", 16, 3, 36, 3))
sketch6.addConstraint(Sketcher.Constraint("Horizontal", 17, 3, 37, 3))
sketch6.addConstraint(Sketcher.Constraint("Horizontal", 18, 3, 38, 3))
sketch6.addConstraint(Sketcher.Constraint("Horizontal", 19, 3, 39, 3))
sketch6.addConstraint(Sketcher.Constraint("Vertical", 0, 3, 1, 3))
sketch6.addConstraint(Sketcher.Constraint("Vertical", 1, 3, 2, 3))
sketch6.addConstraint(Sketcher.Constraint("Vertical", 2, 3, 3, 3))
sketch6.addConstraint(Sketcher.Constraint("Vertical", 3, 3, 4, 3))
sketch6.addConstraint(Sketcher.Constraint("Vertical", 4, 3, 5, 3))
sketch6.addConstraint(Sketcher.Constraint("Vertical", 5, 3, 6, 3))
sketch6.addConstraint(Sketcher.Constraint("Vertical", 6, 3, 7, 3))
sketch6.addConstraint(Sketcher.Constraint("Vertical", 7, 3, 8, 3))
sketch6.addConstraint(Sketcher.Constraint("Vertical", 8, 3, 9, 3))
sketch6.addConstraint(Sketcher.Constraint("Vertical", 9, 3, 10, 3))
sketch6.addConstraint(Sketcher.Constraint("Vertical", 10, 3, 11, 3))
sketch6.addConstraint(Sketcher.Constraint("Vertical", 11, 3, 12, 3))
sketch6.addConstraint(Sketcher.Constraint("Vertical", 12, 3, 13, 3))
sketch6.addConstraint(Sketcher.Constraint("Vertical", 13, 3, 14, 3))
sketch6.addConstraint(Sketcher.Constraint("Vertical", 14, 3, 15, 3))
sketch6.addConstraint(Sketcher.Constraint("Vertical", 15, 3, 16, 3))
sketch6.addConstraint(Sketcher.Constraint("Vertical", 16, 3, 17, 3))
sketch6.addConstraint(Sketcher.Constraint("Vertical", 17, 3, 18, 3))
sketch6.addConstraint(Sketcher.Constraint("Vertical", 18, 3, 19, 3))
sketch6.addConstraint(Sketcher.Constraint("Vertical", 20, 3, 21, 3))
sketch6.addConstraint(Sketcher.Constraint("Vertical", 21, 3, 22, 3))
sketch6.addConstraint(Sketcher.Constraint("Vertical", 22, 3, 23, 3))
sketch6.addConstraint(Sketcher.Constraint("Vertical", 23, 3, 24, 3))
sketch6.addConstraint(Sketcher.Constraint("Vertical", 24, 3, 25, 3))
sketch6.addConstraint(Sketcher.Constraint("Vertical", 25, 3, 26, 3))
sketch6.addConstraint(Sketcher.Constraint("Vertical", 26, 3, 27, 3))
sketch6.addConstraint(Sketcher.Constraint("Vertical", 27, 3, 28, 3))
sketch6.addConstraint(Sketcher.Constraint("Vertical", 28, 3, 29, 3))
sketch6.addConstraint(Sketcher.Constraint("Vertical", 29, 3, 30, 3))
sketch6.addConstraint(Sketcher.Constraint("Vertical", 30, 3, 31, 3))
sketch6.addConstraint(Sketcher.Constraint("Vertical", 31, 3, 32, 3))
sketch6.addConstraint(Sketcher.Constraint("Vertical", 32, 3, 33, 3))
sketch6.addConstraint(Sketcher.Constraint("Vertical", 33, 3, 34, 3))
sketch6.addConstraint(Sketcher.Constraint("Vertical", 34, 3, 35, 3))
sketch6.addConstraint(Sketcher.Constraint("Vertical", 35, 3, 36, 3))
sketch6.addConstraint(Sketcher.Constraint("Vertical", 36, 3, 37, 3))
sketch6.addConstraint(Sketcher.Constraint("Vertical", 37, 3, 38, 3))
sketch6.addConstraint(Sketcher.Constraint("Vertical", 38, 3, 39, 3))
sketch6.addConstraint(Sketcher.Constraint("Diameter", 0, 1.016))
sketch6.addConstraint(Sketcher.Constraint("DistanceY", 1, 3, 0, 3, 2.54))
sketch6.addConstraint(Sketcher.Constraint("DistanceY", 2, 3, 1, 3, 2.54))
sketch6.addConstraint(Sketcher.Constraint("DistanceY", 3, 3, 2, 3, 2.54))
sketch6.addConstraint(Sketcher.Constraint("DistanceY", 4, 3, 3, 3, 2.54))
sketch6.addConstraint(Sketcher.Constraint("DistanceY", 5, 3, 4, 3, 2.54))
sketch6.addConstraint(Sketcher.Constraint("DistanceY", 6, 3, 5, 3, 2.54))
sketch6.addConstraint(Sketcher.Constraint("DistanceY", 7, 3, 6, 3, 2.54))
sketch6.addConstraint(Sketcher.Constraint("DistanceY", 8, 3, 7, 3, 2.54))
sketch6.addConstraint(Sketcher.Constraint("DistanceY", 9, 3, 8, 3, 2.54))
sketch6.addConstraint(Sketcher.Constraint("DistanceY", 10, 3, 9, 3, 2.54))
sketch6.addConstraint(Sketcher.Constraint("DistanceY", 11, 3, 10, 3, 2.54))
sketch6.addConstraint(Sketcher.Constraint("DistanceY", 12, 3, 11, 3, 2.54))
sketch6.addConstraint(Sketcher.Constraint("DistanceY", 13, 3, 12, 3, 2.54))
sketch6.addConstraint(Sketcher.Constraint("DistanceY", 14, 3, 13, 3, 2.54))
sketch6.addConstraint(Sketcher.Constraint("DistanceY", 15, 3, 14, 3, 2.54))
sketch6.addConstraint(Sketcher.Constraint("DistanceY", 16, 3, 15, 3, 2.54))
sketch6.addConstraint(Sketcher.Constraint("DistanceY", 17, 3, 16, 3, 2.54))
sketch6.addConstraint(Sketcher.Constraint("DistanceY", 18, 3, 17, 3, 2.54))
sketch6.addConstraint(Sketcher.Constraint("DistanceY", 19, 3, 18, 3, 2.54))
sketch6.addConstraint(Sketcher.Constraint("DistanceX", 0, 3, 20, 3, 2.54))
sketch6.addConstraint(Sketcher.Constraint("DistanceX", 0, 3, -1, 1, 27.37))
sketch6.addConstraint(Sketcher.Constraint("DistanceY", 0, 3, -1, 1, 8.37))
pocket1 = doc.addObject("PartDesign::Pocket", "Pocket")
body.addObject(pocket1)
pocket1.Profile = sketch6
pocket1.Type = "ThroughAll"
pocket1.Reversed = True

doc.recompute()
